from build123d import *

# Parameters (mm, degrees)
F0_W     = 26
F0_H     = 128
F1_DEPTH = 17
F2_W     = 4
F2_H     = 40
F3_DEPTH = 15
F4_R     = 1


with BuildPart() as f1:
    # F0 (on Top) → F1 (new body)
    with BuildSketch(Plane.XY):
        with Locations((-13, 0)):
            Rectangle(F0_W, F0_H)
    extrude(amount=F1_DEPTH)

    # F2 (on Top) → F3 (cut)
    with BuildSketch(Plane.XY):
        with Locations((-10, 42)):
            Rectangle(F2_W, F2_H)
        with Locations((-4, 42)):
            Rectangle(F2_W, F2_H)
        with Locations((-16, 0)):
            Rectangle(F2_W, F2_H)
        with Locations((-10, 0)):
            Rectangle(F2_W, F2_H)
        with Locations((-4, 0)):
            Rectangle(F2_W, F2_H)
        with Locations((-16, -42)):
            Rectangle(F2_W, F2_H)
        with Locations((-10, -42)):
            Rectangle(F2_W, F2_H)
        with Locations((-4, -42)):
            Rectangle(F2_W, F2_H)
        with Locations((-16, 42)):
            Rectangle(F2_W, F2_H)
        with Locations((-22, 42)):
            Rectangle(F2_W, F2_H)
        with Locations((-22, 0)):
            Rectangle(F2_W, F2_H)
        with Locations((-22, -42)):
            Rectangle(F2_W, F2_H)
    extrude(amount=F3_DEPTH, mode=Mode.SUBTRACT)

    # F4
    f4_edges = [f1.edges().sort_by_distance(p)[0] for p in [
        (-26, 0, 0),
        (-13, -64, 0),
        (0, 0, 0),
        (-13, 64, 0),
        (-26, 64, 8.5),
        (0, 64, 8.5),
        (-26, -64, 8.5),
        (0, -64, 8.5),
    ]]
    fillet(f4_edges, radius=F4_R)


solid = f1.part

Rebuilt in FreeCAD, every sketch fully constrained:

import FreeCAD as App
import Part
import Sketcher
from FreeCAD import Vector
Q = App.Units.Quantity


def edges_at(feature, points):
    """Names of the edges that pass closest to the given points."""
    edges = feature.Shape.Edges
    near = lambda p: min(range(len(edges)), key=lambda i: edges[i].distToShape(Part.Vertex(*p))[0])
    return sorted({f"Edge{near(p) + 1}" for p in points})

doc = App.newDocument("Part")
params = doc.addObject("Spreadsheet::Sheet", "Params")
for row, (alias, value) in enumerate([
    ("sketch1_width", "26 mm"),
    ("sketch1_height", "128 mm"),
    ("pad1_length", "17 mm"),
    ("sketch2_width", "4 mm"),
    ("sketch2_height", "40 mm"),
    ("pocket1_length", "15 mm"),
    ("fillet_radius", "1 mm"),
], start=1):
    params.set(f"A{row}", alias)
    params.set(f"B{row}", "=" + value)
    params.setAlias(f"B{row}", alias)

body = doc.addObject("PartDesign::Body", "Body")

sketch1 = body.newObject("Sketcher::SketchObject", "Sketch")
sketch1.AttachmentSupport = (doc.getObject("XY_Plane"), [""])
sketch1.MapMode = "FlatFace"
sketch1.addGeometry([
    Part.LineSegment(Vector(-26, 64, 0), Vector(-26, -64, 0)),
    Part.LineSegment(Vector(-26, -64, 0), Vector(0, -64, 0)),
    Part.LineSegment(Vector(0, -64, 0), Vector(0, 64, 0)),
    Part.LineSegment(Vector(0, 64, 0), Vector(-26, 64, 0)),
], False)
sketch1.addConstraint([
    Sketcher.Constraint("Coincident", 0, 2, 1, 1),
    Sketcher.Constraint("Coincident", 1, 2, 2, 1),
    Sketcher.Constraint("Coincident", 2, 2, 3, 1),
    Sketcher.Constraint("Coincident", 3, 2, 0, 1),
    Sketcher.Constraint("Vertical", 0),
    Sketcher.Constraint("Horizontal", 1),
    Sketcher.Constraint("Vertical", 2),
    Sketcher.Constraint("Horizontal", 3),
    Sketcher.Constraint("Symmetric", 1, 2, 2, 2, -1, 1),
    Sketcher.Constraint("DistanceX", 1, 1, 1, 2, Q("26 mm")),
    Sketcher.Constraint("DistanceY", 0, 2, 0, 1, Q("128 mm")),
])
sketch1.setExpression("Constraints[9]", "Params.sketch1_width")
sketch1.setExpression("Constraints[10]", "Params.sketch1_height")
pad1 = body.newObject("PartDesign::Pad", "Pad")
pad1.Profile = sketch1
pad1.setExpression("Length", "Params.pad1_length")

sketch2 = body.newObject("Sketcher::SketchObject", "Sketch001")
sketch2.AttachmentSupport = (doc.getObject("XY_Plane"), [""])
sketch2.MapMode = "FlatFace"
sketch2.addGeometry([
    Part.LineSegment(Vector(-12, 62, 0), Vector(-12, 22, 0)),
    Part.LineSegment(Vector(-12, 22, 0), Vector(-8, 22, 0)),
    Part.LineSegment(Vector(-8, 22, 0), Vector(-8, 62, 0)),
    Part.LineSegment(Vector(-8, 62, 0), Vector(-12, 62, 0)),
    Part.LineSegment(Vector(-6, 62, 0), Vector(-6, 22, 0)),
    Part.LineSegment(Vector(-6, 22, 0), Vector(-2, 22, 0)),
    Part.LineSegment(Vector(-2, 22, 0), Vector(-2, 62, 0)),
    Part.LineSegment(Vector(-2, 62, 0), Vector(-6, 62, 0)),
    Part.LineSegment(Vector(-18, 20, 0), Vector(-18, -20, 0)),
    Part.LineSegment(Vector(-18, -20, 0), Vector(-14, -20, 0)),
    Part.LineSegment(Vector(-14, -20, 0), Vector(-14, 20, 0)),
    Part.LineSegment(Vector(-14, 20, 0), Vector(-18, 20, 0)),
    Part.LineSegment(Vector(-12, 20, 0), Vector(-12, -20, 0)),
    Part.LineSegment(Vector(-12, -20, 0), Vector(-8, -20, 0)),
    Part.LineSegment(Vector(-8, -20, 0), Vector(-8, 20, 0)),
    Part.LineSegment(Vector(-8, 20, 0), Vector(-12, 20, 0)),
    Part.LineSegment(Vector(-6, 20, 0), Vector(-6, -20, 0)),
    Part.LineSegment(Vector(-6, -20, 0), Vector(-2, -20, 0)),
    Part.LineSegment(Vector(-2, -20, 0), Vector(-2, 20, 0)),
    Part.LineSegment(Vector(-2, 20, 0), Vector(-6, 20, 0)),
    Part.LineSegment(Vector(-18, -22, 0), Vector(-18, -62, 0)),
    Part.LineSegment(Vector(-18, -62, 0), Vector(-14, -62, 0)),
    Part.LineSegment(Vector(-14, -62, 0), Vector(-14, -22, 0)),
    Part.LineSegment(Vector(-14, -22, 0), Vector(-18, -22, 0)),
    Part.LineSegment(Vector(-12, -22, 0), Vector(-12, -62, 0)),
    Part.LineSegment(Vector(-12, -62, 0), Vector(-8, -62, 0)),
    Part.LineSegment(Vector(-8, -62, 0), Vector(-8, -22, 0)),
    Part.LineSegment(Vector(-8, -22, 0), Vector(-12, -22, 0)),
    Part.LineSegment(Vector(-6, -22, 0), Vector(-6, -62, 0)),
    Part.LineSegment(Vector(-6, -62, 0), Vector(-2, -62, 0)),
    Part.LineSegment(Vector(-2, -62, 0), Vector(-2, -22, 0)),
    Part.LineSegment(Vector(-2, -22, 0), Vector(-6, -22, 0)),
    Part.LineSegment(Vector(-18, 62, 0), Vector(-18, 22, 0)),
    Part.LineSegment(Vector(-18, 22, 0), Vector(-14, 22, 0)),
    Part.LineSegment(Vector(-14, 22, 0), Vector(-14, 62, 0)),
    Part.LineSegment(Vector(-14, 62, 0), Vector(-18, 62, 0)),
    Part.LineSegment(Vector(-24, 62, 0), Vector(-24, 22, 0)),
    Part.LineSegment(Vector(-24, 22, 0), Vector(-20, 22, 0)),
    Part.LineSegment(Vector(-20, 22, 0), Vector(-20, 62, 0)),
    Part.LineSegment(Vector(-20, 62, 0), Vector(-24, 62, 0)),
    Part.LineSegment(Vector(-24, 20, 0), Vector(-24, -20, 0)),
    Part.LineSegment(Vector(-24, -20, 0), Vector(-20, -20, 0)),
    Part.LineSegment(Vector(-20, -20, 0), Vector(-20, 20, 0)),
    Part.LineSegment(Vector(-20, 20, 0), Vector(-24, 20, 0)),
    Part.LineSegment(Vector(-24, -22, 0), Vector(-24, -62, 0)),
    Part.LineSegment(Vector(-24, -62, 0), Vector(-20, -62, 0)),
    Part.LineSegment(Vector(-20, -62, 0), Vector(-20, -22, 0)),
    Part.LineSegment(Vector(-20, -22, 0), Vector(-24, -22, 0)),
], False)
sketch2.addConstraint([
    Sketcher.Constraint("Coincident", 0, 2, 1, 1),
    Sketcher.Constraint("Coincident", 1, 2, 2, 1),
    Sketcher.Constraint("Coincident", 2, 2, 3, 1),
    Sketcher.Constraint("Coincident", 3, 2, 0, 1),
    Sketcher.Constraint("Coincident", 4, 2, 5, 1),
    Sketcher.Constraint("Coincident", 5, 2, 6, 1),
    Sketcher.Constraint("Coincident", 6, 2, 7, 1),
    Sketcher.Constraint("Coincident", 7, 2, 4, 1),
    Sketcher.Constraint("Coincident", 8, 2, 9, 1),
    Sketcher.Constraint("Coincident", 9, 2, 10, 1),
    Sketcher.Constraint("Coincident", 10, 2, 11, 1),
    Sketcher.Constraint("Coincident", 11, 2, 8, 1),
    Sketcher.Constraint("Coincident", 12, 2, 13, 1),
    Sketcher.Constraint("Coincident", 13, 2, 14, 1),
    Sketcher.Constraint("Coincident", 14, 2, 15, 1),
    Sketcher.Constraint("Coincident", 15, 2, 12, 1),
    Sketcher.Constraint("Coincident", 16, 2, 17, 1),
    Sketcher.Constraint("Coincident", 17, 2, 18, 1),
    Sketcher.Constraint("Coincident", 18, 2, 19, 1),
    Sketcher.Constraint("Coincident", 19, 2, 16, 1),
    Sketcher.Constraint("Coincident", 20, 2, 21, 1),
    Sketcher.Constraint("Coincident", 21, 2, 22, 1),
    Sketcher.Constraint("Coincident", 22, 2, 23, 1),
    Sketcher.Constraint("Coincident", 23, 2, 20, 1),
    Sketcher.Constraint("Coincident", 24, 2, 25, 1),
    Sketcher.Constraint("Coincident", 25, 2, 26, 1),
    Sketcher.Constraint("Coincident", 26, 2, 27, 1),
    Sketcher.Constraint("Coincident", 27, 2, 24, 1),
    Sketcher.Constraint("Coincident", 28, 2, 29, 1),
    Sketcher.Constraint("Coincident", 29, 2, 30, 1),
    Sketcher.Constraint("Coincident", 30, 2, 31, 1),
    Sketcher.Constraint("Coincident", 31, 2, 28, 1),
    Sketcher.Constraint("Coincident", 32, 2, 33, 1),
    Sketcher.Constraint("Coincident", 33, 2, 34, 1),
    Sketcher.Constraint("Coincident", 34, 2, 35, 1),
    Sketcher.Constraint("Coincident", 35, 2, 32, 1),
    Sketcher.Constraint("Coincident", 36, 2, 37, 1),
    Sketcher.Constraint("Coincident", 37, 2, 38, 1),
    Sketcher.Constraint("Coincident", 38, 2, 39, 1),
    Sketcher.Constraint("Coincident", 39, 2, 36, 1),
    Sketcher.Constraint("Coincident", 40, 2, 41, 1),
    Sketcher.Constraint("Coincident", 41, 2, 42, 1),
    Sketcher.Constraint("Coincident", 42, 2, 43, 1),
    Sketcher.Constraint("Coincident", 43, 2, 40, 1),
    Sketcher.Constraint("Coincident", 44, 2, 45, 1),
    Sketcher.Constraint("Coincident", 45, 2, 46, 1),
    Sketcher.Constraint("Coincident", 46, 2, 47, 1),
    Sketcher.Constraint("Coincident", 47, 2, 44, 1),
    Sketcher.Constraint("Vertical", 0),
    Sketcher.Constraint("Horizontal", 1),
    Sketcher.Constraint("Vertical", 2),
    Sketcher.Constraint("Horizontal", 3),
    Sketcher.Constraint("Vertical", 4),
    Sketcher.Constraint("Horizontal", 5),
    Sketcher.Constraint("Vertical", 6),
    Sketcher.Constraint("Horizontal", 7),
    Sketcher.Constraint("Vertical", 8),
    Sketcher.Constraint("Horizontal", 9),
    Sketcher.Constraint("Vertical", 10),
    Sketcher.Constraint("Horizontal", 11),
    Sketcher.Constraint("Vertical", 12),
    Sketcher.Constraint("Horizontal", 13),
    Sketcher.Constraint("Vertical", 14),
    Sketcher.Constraint("Horizontal", 15),
    Sketcher.Constraint("Vertical", 16),
    Sketcher.Constraint("Horizontal", 17),
    Sketcher.Constraint("Vertical", 18),
    Sketcher.Constraint("Horizontal", 19),
    Sketcher.Constraint("Vertical", 20),
    Sketcher.Constraint("Horizontal", 21),
    Sketcher.Constraint("Vertical", 22),
    Sketcher.Constraint("Horizontal", 23),
    Sketcher.Constraint("Vertical", 24),
    Sketcher.Constraint("Horizontal", 25),
    Sketcher.Constraint("Vertical", 26),
    Sketcher.Constraint("Horizontal", 27),
    Sketcher.Constraint("Vertical", 28),
    Sketcher.Constraint("Horizontal", 29),
    Sketcher.Constraint("Vertical", 30),
    Sketcher.Constraint("Horizontal", 31),
    Sketcher.Constraint("Vertical", 32),
    Sketcher.Constraint("Horizontal", 33),
    Sketcher.Constraint("Vertical", 34),
    Sketcher.Constraint("Horizontal", 35),
    Sketcher.Constraint("Vertical", 36),
    Sketcher.Constraint("Horizontal", 37),
    Sketcher.Constraint("Vertical", 38),
    Sketcher.Constraint("Horizontal", 39),
    Sketcher.Constraint("Vertical", 40),
    Sketcher.Constraint("Horizontal", 41),
    Sketcher.Constraint("Vertical", 42),
    Sketcher.Constraint("Horizontal", 43),
    Sketcher.Constraint("Vertical", 44),
    Sketcher.Constraint("Horizontal", 45),
    Sketcher.Constraint("Vertical", 46),
    Sketcher.Constraint("Horizontal", 47),
    Sketcher.Constraint("Symmetric", 3, 2, 24, 2, -1),
    Sketcher.Constraint("Symmetric", 1, 2, 26, 2, -1),
    Sketcher.Constraint("Symmetric", 7, 2, 28, 2, -1),
    Sketcher.Constraint("Symmetric", 5, 2, 30, 2, -1),
    Sketcher.Constraint("Symmetric", 23, 2, 32, 2, -1),
    Sketcher.Constraint("Symmetric", 21, 2, 34, 2, -1),
    Sketcher.Constraint("Symmetric", 39, 2, 44, 2, -1),
    Sketcher.Constraint("Symmetric", 37, 2, 46, 2, -1),
    Sketcher.Constraint("Horizontal", 1, 2, 4, 2),
    Sketcher.Constraint("Horizontal", 3, 2, 6, 2),
    Sketcher.Constraint("Horizontal", 9, 2, 12, 2),
    Sketcher.Constraint("Horizontal", 11, 2, 14, 2),
    Sketcher.Constraint("Horizontal", 13, 2, 16, 2),
    Sketcher.Constraint("Horizontal", 15, 2, 18, 2),
    Sketcher.Constraint("Horizontal", 21, 2, 24, 2),
    Sketcher.Constraint("Horizontal", 23, 2, 26, 2),
    Sketcher.Constraint("Horizontal", 33, 2, 36, 2),
    Sketcher.Constraint("Horizontal", 35, 2, 38, 2),
    Sketcher.Constraint("Horizontal", 17, 2, 40, 2),
    Sketcher.Constraint("Horizontal", 19, 2, 42, 2),
    Sketcher.Constraint("Vertical", 3, 2, 12, 2),
    Sketcher.Constraint("Vertical", 2, 2, 13, 2),
    Sketcher.Constraint("Vertical", 7, 2, 16, 2),
    Sketcher.Constraint("Vertical", 6, 2, 17, 2),
    Sketcher.Constraint("Vertical", 11, 2, 20, 2),
    Sketcher.Constraint("Vertical", 10, 2, 21, 2),
    Sketcher.Constraint("Vertical", 39, 2, 40, 2),
    Sketcher.Constraint("Vertical", 38, 2, 41, 2),
    Sketcher.Constraint("Equal", 3, 5),
    Sketcher.Constraint("Equal", 7, 9),
    Sketcher.Constraint("Equal", 35, 37),
    Sketcher.Constraint("Equal", 6, 8),
    Sketcher.Constraint("DistanceX", 1, 1, 1, 2, Q("4 mm")),
    Sketcher.Constraint("DistanceY", 0, 2, 0, 1, Q("40 mm")),
    Sketcher.Constraint("DistanceX", 0, 2, -1, 1, Q("12 mm")),
    Sketcher.Constraint("DistanceY", -1, 1, 0, 2, Q("22 mm")),
    Sketcher.Constraint("DistanceX", 4, 2, -1, 1, Q("6 mm")),
    Sketcher.Constraint("DistanceX", 8, 2, -1, 1, Q("18 mm")),
    Sketcher.Constraint("DistanceY", 8, 2, -1, 1, Q("20 mm")),
    Sketcher.Constraint("DistanceX", 36, 2, -1, 1, Q("24 mm")),
])
sketch2.setExpression("Constraints[128]", "Params.sketch2_width")
sketch2.setExpression("Constraints[129]", "Params.sketch2_height")
pocket1 = body.newObject("PartDesign::Pocket", "Pocket")
pocket1.Profile = sketch2
pocket1.setExpression("Length", "Params.pocket1_length")
pocket1.Reversed = True
doc.recompute()

fillet = body.newObject("PartDesign::Fillet", "Fillet")
fillet.Base = (pocket1, edges_at(pocket1, [
    (-26, 0, 0),
    (-13, -64, 0),
    (0, 0, 0),
    (-13, 64, 0),
    (-26, 64, 8.5),
    (0, 64, 8.5),
    (-26, -64, 8.5),
    (0, -64, 8.5),
]))
fillet.setExpression("Radius", "Params.fillet_radius")

doc.recompute()
